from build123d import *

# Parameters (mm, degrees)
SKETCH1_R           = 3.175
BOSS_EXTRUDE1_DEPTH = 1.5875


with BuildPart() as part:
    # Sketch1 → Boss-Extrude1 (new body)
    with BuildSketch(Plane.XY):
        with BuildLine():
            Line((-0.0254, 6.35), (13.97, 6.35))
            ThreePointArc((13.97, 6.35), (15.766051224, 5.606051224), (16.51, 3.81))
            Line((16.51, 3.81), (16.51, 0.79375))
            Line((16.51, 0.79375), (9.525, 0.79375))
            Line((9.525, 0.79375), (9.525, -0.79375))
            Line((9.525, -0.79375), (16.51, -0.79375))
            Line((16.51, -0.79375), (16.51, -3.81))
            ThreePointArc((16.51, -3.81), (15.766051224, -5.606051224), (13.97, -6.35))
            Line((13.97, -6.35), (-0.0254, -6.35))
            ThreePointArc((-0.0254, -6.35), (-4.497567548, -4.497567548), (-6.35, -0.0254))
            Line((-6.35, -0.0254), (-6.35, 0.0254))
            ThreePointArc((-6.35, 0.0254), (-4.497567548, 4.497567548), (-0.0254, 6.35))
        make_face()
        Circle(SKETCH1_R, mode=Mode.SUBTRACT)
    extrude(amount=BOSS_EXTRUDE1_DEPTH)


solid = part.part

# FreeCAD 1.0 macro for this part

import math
import FreeCAD as App
import Part
import Sketcher
from FreeCAD import Vector
Q = App.Units.Quantity

doc = App.newDocument("Part")
body = doc.addObject("PartDesign::Body", "Body")

sketch1 = body.newObject("Sketcher::SketchObject", "Sketch")
sketch1.AttachmentSupport = (doc.getObject("XY_Plane"), [""])
sketch1.MapMode = "FlatFace"
sketch1.addGeometry(Part.LineSegment(Vector(13.97, 6.35, 0), Vector(-0.0254, 6.35, 0)), False)
sketch1.addGeometry(Part.ArcOfCircle(Part.Circle(Vector(-0.0254, 0.0254, 0), Vector(0, 0, 1), 6.3246), math.radians(90), math.radians(180)), False)
sketch1.addGeometry(Part.LineSegment(Vector(-6.35, 0.0254, 0), Vector(-6.35, -0.0254, 0)), False)
sketch1.addGeometry(Part.ArcOfCircle(Part.Circle(Vector(-0.0254, -0.0254, 0), Vector(0, 0, 1), 6.3246), math.radians(-180), math.radians(-90)), False)
sketch1.addGeometry(Part.LineSegment(Vector(-0.0254, -6.35, 0), Vector(13.97, -6.35, 0)), False)
sketch1.addGeometry(Part.ArcOfCircle(Part.Circle(Vector(13.97, -3.81, 0), Vector(0, 0, 1), 2.54), math.radians(-90), math.radians(0)), False)
sketch1.addGeometry(Part.LineSegment(Vector(16.51, -3.81, 0), Vector(16.51, -0.79375, 0)), False)
sketch1.addGeometry(Part.LineSegment(Vector(16.51, -0.79375, 0), Vector(9.525, -0.79375, 0)), False)
sketch1.addGeometry(Part.LineSegment(Vector(9.525, -0.79375, 0), Vector(9.525, 0.79375, 0)), False)
sketch1.addGeometry(Part.LineSegment(Vector(9.525, 0.79375, 0), Vector(16.51, 0.79375, 0)), False)
sketch1.addGeometry(Part.LineSegment(Vector(16.51, 0.79375, 0), Vector(16.51, 3.81, 0)), False)
sketch1.addGeometry(Part.ArcOfCircle(Part.Circle(Vector(13.97, 3.81, 0), Vector(0, 0, 1), 2.54), math.radians(0), math.radians(90)), False)
sketch1.addGeometry(Part.Circle(Vector(0, 0, 0), Vector(0, 0, 1), 3.175), False)
sketch1.addConstraint(Sketcher.Constraint("Tangent", 0, 2, 1, 1))
sketch1.addConstraint(Sketcher.Constraint("Tangent", 1, 2, 2, 1))
sketch1.addConstraint(Sketcher.Constraint("Tangent", 2, 2, 3, 1))
sketch1.addConstraint(Sketcher.Constraint("Tangent", 3, 2, 4, 1))
sketch1.addConstraint(Sketcher.Constraint("Tangent", 4, 2, 5, 1))
sketch1.addConstraint(Sketcher.Constraint("Tangent", 5, 2, 6, 1))
sketch1.addConstraint(Sketcher.Constraint("Coincident", 6, 2, 7, 1))
sketch1.addConstraint(Sketcher.Constraint("Coincident", 7, 2, 8, 1))
sketch1.addConstraint(Sketcher.Constraint("Coincident", 8, 2, 9, 1))
sketch1.addConstraint(Sketcher.Constraint("Coincident", 9, 2, 10, 1))
sketch1.addConstraint(Sketcher.Constraint("Tangent", 10, 2, 11, 1))
sketch1.addConstraint(Sketcher.Constraint("Tangent", 11, 2, 0, 1))
sketch1.addConstraint(Sketcher.Constraint("Horizontal", 0))
sketch1.addConstraint(Sketcher.Constraint("Vertical", 2))
sketch1.addConstraint(Sketcher.Constraint("Horizontal", 4))
sketch1.addConstraint(Sketcher.Constraint("Vertical", 6))
sketch1.addConstraint(Sketcher.Constraint("Horizontal", 7))
sketch1.addConstraint(Sketcher.Constraint("Vertical", 8))
sketch1.addConstraint(Sketcher.Constraint("Horizontal", 9))
sketch1.addConstraint(Sketcher.Constraint("Vertical", 10))
sketch1.addConstraint(Sketcher.Constraint("Coincident", 12, 3, -1, 1))
sketch1.addConstraint(Sketcher.Constraint("Equal", 1, 3))
sketch1.addConstraint(Sketcher.Constraint("Equal", 5, 11))
sketch1.addConstraint(Sketcher.Constraint("Symmetric", 5, 3, 11, 3, -1))
sketch1.addConstraint(Sketcher.Constraint("Equal", 6, 10))
sketch1.addConstraint(Sketcher.Constraint("Radius", 5, Q("0.1 in")))
sketch1.addConstraint(Sketcher.Constraint("Diameter", 12, Q("0.25 in")))
sketch1.addConstraint(Sketcher.Constraint("Radius", 1, Q("0.249 in")))
sketch1.addConstraint(Sketcher.Constraint("DistanceY", 5, 3, 11, 3, Q("0.3 in")))
sketch1.addConstraint(Sketcher.Constraint("DistanceX", 1, 2, 11, 3, Q("0.8 in")))
sketch1.addConstraint(Sketcher.Constraint("DistanceX", 7, 2, 7, 1, Q("0.275 in")))
sketch1.addConstraint(Sketcher.Constraint("DistanceY", 8, 1, 8, 2, Q("0.0625 in")))
sketch1.addConstraint(Sketcher.Constraint("DistanceX", -1, 1, 5, 3, Q("0.55 in")))
pad1 = body.newObject("PartDesign::Pad", "Pad")
pad1.Profile = sketch1
pad1.Length = Q("0.0625 in")

doc.recompute()
